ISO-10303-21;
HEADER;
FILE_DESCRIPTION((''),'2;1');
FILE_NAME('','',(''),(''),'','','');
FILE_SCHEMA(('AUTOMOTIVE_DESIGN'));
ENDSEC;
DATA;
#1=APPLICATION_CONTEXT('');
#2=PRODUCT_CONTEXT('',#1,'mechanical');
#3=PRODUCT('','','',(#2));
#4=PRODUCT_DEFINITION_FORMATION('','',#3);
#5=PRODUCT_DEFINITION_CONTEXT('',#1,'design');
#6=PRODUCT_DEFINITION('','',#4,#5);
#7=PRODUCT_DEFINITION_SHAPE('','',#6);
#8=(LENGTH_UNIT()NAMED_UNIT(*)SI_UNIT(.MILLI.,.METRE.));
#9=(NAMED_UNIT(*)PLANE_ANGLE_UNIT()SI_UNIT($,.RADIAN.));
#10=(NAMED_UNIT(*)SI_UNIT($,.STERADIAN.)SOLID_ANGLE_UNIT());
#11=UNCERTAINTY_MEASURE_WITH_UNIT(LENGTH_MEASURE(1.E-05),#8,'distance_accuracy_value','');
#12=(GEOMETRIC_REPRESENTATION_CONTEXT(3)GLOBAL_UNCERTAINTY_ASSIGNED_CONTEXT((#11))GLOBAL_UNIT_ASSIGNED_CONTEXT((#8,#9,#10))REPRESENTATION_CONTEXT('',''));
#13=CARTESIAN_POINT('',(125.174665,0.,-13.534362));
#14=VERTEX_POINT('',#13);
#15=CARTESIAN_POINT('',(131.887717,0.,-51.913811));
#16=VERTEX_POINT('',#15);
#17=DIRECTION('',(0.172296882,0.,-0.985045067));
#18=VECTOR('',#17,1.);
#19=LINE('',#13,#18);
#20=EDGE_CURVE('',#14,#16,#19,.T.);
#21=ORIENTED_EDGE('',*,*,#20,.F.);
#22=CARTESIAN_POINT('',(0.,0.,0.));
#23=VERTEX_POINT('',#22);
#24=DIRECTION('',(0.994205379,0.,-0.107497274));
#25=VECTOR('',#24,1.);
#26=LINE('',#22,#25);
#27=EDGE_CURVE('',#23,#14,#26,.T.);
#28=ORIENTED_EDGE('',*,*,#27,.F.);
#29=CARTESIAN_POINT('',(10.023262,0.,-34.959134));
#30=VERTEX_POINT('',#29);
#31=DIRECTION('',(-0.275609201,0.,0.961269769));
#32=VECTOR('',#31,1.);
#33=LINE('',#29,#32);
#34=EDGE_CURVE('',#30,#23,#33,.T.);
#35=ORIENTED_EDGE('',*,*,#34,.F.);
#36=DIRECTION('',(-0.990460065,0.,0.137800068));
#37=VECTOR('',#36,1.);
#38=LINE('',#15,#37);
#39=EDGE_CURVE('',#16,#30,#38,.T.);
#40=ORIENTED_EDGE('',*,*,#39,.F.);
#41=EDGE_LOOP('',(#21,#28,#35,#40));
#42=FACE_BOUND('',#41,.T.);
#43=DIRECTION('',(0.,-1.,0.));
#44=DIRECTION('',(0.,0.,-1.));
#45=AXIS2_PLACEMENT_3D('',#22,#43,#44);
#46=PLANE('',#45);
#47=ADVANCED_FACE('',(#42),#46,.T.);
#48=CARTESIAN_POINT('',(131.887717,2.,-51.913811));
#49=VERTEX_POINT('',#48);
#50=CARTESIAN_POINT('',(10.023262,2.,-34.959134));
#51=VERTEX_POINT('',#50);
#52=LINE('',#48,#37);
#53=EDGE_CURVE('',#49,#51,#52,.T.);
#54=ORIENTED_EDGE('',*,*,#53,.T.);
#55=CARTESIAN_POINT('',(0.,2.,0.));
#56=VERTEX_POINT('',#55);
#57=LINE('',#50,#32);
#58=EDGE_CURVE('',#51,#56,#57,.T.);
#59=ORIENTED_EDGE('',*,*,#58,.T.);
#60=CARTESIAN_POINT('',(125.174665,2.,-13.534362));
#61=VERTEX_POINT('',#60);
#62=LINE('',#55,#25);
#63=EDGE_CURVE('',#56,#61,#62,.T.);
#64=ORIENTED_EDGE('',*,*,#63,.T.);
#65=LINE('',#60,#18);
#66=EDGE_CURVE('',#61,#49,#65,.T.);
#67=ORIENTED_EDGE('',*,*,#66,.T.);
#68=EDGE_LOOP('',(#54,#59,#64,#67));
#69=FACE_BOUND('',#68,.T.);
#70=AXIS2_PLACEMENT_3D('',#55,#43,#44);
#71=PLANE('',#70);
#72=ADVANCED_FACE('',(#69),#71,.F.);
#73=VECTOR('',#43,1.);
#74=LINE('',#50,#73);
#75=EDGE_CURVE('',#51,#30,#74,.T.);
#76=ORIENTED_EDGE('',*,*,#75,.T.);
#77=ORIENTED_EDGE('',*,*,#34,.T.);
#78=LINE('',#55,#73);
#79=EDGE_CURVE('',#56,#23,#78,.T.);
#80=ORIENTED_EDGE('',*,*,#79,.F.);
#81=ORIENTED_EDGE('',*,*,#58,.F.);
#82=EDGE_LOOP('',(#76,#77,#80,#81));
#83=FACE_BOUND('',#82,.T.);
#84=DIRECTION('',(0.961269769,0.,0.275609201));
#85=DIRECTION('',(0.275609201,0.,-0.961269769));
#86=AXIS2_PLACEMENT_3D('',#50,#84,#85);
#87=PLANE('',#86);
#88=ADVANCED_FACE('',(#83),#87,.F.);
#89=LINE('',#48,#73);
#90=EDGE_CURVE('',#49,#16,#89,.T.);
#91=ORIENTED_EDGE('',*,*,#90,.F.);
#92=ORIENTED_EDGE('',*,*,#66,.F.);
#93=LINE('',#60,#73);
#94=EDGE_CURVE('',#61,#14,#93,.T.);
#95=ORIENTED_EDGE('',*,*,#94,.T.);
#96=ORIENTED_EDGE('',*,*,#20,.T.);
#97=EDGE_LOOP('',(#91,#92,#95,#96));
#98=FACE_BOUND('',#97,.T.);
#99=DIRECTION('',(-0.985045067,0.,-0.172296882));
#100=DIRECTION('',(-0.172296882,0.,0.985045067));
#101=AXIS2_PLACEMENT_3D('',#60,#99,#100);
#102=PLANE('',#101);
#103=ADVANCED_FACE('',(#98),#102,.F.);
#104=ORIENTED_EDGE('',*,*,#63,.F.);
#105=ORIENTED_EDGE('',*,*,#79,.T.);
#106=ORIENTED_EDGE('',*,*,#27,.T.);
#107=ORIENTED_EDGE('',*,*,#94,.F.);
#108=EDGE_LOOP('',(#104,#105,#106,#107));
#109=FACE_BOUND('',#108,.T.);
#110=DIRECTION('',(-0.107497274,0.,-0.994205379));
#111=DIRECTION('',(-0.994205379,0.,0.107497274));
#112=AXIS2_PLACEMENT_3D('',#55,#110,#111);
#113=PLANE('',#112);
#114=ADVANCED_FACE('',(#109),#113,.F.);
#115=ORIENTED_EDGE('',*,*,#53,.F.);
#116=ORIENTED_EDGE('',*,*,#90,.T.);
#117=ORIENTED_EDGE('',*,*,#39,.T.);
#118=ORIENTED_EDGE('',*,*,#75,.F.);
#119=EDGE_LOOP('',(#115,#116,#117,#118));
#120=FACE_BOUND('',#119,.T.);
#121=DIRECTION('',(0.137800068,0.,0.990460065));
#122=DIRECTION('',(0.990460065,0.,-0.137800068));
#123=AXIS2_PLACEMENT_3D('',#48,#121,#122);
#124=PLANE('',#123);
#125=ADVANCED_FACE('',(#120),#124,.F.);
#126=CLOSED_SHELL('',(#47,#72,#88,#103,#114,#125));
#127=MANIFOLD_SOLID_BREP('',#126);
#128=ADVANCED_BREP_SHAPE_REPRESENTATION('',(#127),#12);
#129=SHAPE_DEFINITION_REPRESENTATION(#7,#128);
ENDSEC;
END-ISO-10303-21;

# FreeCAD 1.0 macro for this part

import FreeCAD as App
import Part
import Sketcher

V = App.Vector

doc = App.newDocument("Part")
body = doc.addObject("PartDesign::Body", "Body")

# Sketch on XZ plane
sketch1 = body.newObject("Sketcher::SketchObject", "Sketch")
sketch1.AttachmentSupport = (doc.getObject("XZ_Plane"), [""])
sketch1.MapMode = "FlatFace"
sketch1.addGeometry([
    Part.LineSegment(V(132, -52, 0), V(10, -35, 0)),
    Part.LineSegment(V(10, -35, 0), V(0, 0, 0)),
    Part.LineSegment(V(0, 0, 0), V(125, -14, 0)),
    Part.LineSegment(V(125, -14, 0), V(132, -52, 0)),
], False)
sketch1.addConstraint([
    Sketcher.Constraint("Coincident", 0, 2, 1, 1),
    Sketcher.Constraint("Coincident", 1, 2, 2, 1),
    Sketcher.Constraint("Coincident", 2, 2, 3, 1),
    Sketcher.Constraint("Coincident", 3, 2, 0, 1),
    Sketcher.Constraint("Coincident", 1, 2, -1, 1),
    Sketcher.Constraint("Distance", 0, 123.038232),
    Sketcher.Constraint("Distance", 2, 125.904232),
    Sketcher.Constraint("DistanceY", 2, 2, -1, 1, 13.534362),
    Sketcher.Constraint("DistanceY", 3, 2, -1, 1, 51.913811),
    Sketcher.Constraint("Distance", 1, 36.367662),
    Sketcher.Constraint("Distance", 3, 38.962125),
])
pad1 = body.newObject("PartDesign::Pad", "Pad")
pad1.Profile = sketch1
pad1.Length = 2
pad1.Reversed = True

doc.recompute()
